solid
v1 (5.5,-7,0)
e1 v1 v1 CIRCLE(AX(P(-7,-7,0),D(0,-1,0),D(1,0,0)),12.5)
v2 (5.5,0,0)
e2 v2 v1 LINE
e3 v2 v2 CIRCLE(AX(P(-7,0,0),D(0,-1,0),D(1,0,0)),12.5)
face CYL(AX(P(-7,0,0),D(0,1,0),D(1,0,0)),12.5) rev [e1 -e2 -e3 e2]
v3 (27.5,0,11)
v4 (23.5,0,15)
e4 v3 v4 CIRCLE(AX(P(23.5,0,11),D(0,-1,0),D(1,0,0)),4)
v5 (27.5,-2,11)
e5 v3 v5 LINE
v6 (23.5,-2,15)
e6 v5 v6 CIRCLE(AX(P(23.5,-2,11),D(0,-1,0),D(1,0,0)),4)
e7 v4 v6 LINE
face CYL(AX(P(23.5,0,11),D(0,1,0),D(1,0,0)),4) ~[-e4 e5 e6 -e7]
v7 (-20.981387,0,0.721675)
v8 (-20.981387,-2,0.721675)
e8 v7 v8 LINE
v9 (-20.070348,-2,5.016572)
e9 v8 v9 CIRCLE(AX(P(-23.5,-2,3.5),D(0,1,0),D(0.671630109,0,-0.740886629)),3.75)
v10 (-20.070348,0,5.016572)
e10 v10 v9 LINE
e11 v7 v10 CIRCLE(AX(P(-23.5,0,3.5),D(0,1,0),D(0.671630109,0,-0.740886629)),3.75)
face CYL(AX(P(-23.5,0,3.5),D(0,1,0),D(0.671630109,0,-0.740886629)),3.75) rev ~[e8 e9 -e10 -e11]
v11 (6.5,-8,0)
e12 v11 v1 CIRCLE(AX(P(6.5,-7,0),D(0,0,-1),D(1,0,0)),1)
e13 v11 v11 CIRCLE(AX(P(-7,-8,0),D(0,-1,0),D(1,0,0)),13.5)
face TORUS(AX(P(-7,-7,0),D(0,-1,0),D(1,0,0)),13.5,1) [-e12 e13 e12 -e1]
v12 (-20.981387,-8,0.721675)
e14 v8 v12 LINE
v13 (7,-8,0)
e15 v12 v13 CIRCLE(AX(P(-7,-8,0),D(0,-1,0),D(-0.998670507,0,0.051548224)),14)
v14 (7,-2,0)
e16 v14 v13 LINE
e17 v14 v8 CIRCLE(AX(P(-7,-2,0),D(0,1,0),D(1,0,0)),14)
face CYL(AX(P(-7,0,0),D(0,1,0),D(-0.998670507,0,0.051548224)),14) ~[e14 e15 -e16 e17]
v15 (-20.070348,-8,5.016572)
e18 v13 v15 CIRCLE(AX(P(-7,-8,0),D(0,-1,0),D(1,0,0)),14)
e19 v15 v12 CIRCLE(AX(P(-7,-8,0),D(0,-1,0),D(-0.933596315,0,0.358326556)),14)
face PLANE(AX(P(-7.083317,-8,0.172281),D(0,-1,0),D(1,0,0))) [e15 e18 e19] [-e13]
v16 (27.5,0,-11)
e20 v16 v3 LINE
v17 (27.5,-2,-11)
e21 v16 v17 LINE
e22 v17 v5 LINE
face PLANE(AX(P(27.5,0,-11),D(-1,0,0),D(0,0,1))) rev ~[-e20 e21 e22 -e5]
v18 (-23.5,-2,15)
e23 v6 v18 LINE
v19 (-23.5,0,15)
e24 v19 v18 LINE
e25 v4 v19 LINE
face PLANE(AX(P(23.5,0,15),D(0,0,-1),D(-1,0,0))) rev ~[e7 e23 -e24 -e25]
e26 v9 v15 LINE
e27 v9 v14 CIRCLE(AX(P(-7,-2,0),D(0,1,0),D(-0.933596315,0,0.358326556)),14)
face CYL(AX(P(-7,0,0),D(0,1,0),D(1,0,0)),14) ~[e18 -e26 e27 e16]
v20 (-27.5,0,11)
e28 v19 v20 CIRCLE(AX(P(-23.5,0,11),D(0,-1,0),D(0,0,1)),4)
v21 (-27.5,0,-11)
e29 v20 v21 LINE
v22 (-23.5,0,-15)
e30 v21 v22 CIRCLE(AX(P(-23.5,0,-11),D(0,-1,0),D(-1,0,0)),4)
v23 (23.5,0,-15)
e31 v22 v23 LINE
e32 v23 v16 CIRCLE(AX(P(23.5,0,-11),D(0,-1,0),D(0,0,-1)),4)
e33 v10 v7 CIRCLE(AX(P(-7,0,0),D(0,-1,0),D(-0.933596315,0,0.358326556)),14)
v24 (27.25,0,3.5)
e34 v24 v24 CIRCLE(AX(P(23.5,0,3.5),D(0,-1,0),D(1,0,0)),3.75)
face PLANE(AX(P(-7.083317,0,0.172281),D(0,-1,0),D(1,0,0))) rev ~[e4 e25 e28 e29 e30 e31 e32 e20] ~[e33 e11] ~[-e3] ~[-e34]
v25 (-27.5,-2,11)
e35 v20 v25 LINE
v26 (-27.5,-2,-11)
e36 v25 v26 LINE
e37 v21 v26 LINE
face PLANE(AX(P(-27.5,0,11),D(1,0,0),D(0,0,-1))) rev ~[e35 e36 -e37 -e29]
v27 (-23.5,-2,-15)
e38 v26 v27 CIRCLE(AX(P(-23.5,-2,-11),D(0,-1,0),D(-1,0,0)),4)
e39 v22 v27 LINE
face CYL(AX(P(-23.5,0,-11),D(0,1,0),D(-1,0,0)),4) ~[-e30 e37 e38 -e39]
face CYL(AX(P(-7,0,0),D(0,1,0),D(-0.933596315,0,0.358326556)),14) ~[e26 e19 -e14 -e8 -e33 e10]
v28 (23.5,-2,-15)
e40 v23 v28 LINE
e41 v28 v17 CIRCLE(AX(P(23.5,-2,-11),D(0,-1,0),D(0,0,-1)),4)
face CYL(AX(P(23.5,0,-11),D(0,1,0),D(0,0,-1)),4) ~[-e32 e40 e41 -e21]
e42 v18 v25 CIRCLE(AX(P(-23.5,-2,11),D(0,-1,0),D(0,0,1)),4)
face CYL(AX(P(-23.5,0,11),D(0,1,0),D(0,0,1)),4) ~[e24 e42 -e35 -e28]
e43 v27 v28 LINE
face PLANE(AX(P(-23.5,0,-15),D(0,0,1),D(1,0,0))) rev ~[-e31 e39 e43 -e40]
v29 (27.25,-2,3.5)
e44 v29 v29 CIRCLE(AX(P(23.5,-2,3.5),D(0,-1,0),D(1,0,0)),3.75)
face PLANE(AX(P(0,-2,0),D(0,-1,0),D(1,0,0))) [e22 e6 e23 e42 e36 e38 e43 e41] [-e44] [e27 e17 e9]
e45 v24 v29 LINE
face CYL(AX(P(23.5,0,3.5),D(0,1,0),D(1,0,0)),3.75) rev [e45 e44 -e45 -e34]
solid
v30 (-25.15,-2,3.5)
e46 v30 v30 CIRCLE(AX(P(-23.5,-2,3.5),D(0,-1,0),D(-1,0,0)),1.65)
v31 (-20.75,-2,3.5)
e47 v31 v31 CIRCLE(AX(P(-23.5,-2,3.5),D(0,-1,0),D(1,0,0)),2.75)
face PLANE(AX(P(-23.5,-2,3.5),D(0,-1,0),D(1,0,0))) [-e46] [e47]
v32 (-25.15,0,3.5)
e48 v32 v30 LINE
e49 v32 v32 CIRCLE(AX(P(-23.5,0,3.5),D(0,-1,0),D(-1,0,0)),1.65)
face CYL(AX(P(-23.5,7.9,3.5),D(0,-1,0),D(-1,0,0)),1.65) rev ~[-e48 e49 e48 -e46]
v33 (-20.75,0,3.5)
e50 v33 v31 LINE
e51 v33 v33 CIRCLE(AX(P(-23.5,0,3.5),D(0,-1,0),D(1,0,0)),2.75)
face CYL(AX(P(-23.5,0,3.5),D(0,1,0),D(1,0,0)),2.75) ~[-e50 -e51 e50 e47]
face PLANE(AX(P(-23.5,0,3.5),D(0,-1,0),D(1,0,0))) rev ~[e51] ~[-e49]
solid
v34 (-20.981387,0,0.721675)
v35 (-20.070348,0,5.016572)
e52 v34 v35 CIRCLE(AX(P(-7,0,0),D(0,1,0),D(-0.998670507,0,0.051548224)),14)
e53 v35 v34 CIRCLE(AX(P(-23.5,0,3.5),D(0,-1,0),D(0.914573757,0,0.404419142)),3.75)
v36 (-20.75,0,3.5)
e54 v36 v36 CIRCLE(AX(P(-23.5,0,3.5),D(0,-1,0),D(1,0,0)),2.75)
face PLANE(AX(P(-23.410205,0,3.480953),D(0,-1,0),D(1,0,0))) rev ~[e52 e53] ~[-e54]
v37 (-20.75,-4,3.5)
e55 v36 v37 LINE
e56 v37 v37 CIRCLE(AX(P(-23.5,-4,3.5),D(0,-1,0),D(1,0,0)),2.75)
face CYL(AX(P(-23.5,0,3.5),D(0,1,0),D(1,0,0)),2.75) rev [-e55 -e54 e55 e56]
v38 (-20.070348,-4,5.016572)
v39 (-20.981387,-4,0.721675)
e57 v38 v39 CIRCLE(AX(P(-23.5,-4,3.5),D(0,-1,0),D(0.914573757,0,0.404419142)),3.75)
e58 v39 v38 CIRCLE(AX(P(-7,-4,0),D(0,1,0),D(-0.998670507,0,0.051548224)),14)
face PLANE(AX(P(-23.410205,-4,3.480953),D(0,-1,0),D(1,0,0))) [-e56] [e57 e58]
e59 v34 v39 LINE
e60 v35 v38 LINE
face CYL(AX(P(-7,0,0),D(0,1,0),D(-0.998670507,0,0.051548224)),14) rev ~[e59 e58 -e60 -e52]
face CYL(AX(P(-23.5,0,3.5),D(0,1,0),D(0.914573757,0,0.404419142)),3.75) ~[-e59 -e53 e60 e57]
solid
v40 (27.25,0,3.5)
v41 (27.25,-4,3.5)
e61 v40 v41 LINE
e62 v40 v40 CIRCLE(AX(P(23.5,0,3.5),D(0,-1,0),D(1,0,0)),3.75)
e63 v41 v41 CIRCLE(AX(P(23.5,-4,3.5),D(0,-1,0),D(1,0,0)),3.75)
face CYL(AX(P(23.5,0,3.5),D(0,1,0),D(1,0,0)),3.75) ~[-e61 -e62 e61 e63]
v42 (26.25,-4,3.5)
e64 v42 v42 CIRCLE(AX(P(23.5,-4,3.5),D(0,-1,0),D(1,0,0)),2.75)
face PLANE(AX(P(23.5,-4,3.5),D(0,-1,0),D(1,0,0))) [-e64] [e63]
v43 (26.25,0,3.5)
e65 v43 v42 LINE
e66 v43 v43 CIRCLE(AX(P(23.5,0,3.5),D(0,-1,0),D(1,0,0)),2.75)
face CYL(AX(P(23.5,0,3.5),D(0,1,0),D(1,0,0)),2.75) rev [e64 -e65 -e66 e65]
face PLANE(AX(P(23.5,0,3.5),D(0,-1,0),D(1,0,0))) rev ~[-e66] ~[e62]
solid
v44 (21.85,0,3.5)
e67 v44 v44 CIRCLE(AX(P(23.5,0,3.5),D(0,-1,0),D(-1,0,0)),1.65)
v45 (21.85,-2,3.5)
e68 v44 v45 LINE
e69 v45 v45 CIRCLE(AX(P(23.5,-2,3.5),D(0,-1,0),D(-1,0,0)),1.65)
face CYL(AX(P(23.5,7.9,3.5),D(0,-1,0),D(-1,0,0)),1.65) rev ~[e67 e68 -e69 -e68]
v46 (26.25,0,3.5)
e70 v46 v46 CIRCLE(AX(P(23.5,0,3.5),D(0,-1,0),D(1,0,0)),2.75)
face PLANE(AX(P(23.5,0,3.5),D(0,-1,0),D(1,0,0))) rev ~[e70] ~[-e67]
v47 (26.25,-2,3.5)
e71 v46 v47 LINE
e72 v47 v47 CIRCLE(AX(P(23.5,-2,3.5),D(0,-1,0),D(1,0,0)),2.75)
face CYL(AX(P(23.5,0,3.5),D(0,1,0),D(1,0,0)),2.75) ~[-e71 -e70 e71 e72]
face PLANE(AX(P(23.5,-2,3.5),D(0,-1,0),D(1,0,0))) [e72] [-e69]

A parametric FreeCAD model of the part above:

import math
import FreeCAD as App
import Part
import Sketcher
from FreeCAD import Vector


def edges_at(feature, points):
    """Names of the edges that pass closest to the given points."""
    edges = feature.Shape.Edges
    near = lambda p: min(range(len(edges)), key=lambda i: edges[i].distToShape(Part.Vertex(*p))[0])
    return sorted({f"Edge{near(p) + 1}" for p in points})

doc = App.newDocument("Part")
body = doc.addObject("PartDesign::Body", "Body")

sketch1 = doc.addObject("Sketcher::SketchObject", "Sketch")
body.addObject(sketch1)
sketch1.AttachmentSupport = (doc.XZ_Plane, [""])
sketch1.MapMode = "FlatFace"
sketch1.addGeometry([
    Part.LineSegment(Vector(-23.5, -15, 0), Vector(23.5, -15, 0)),
    Part.ArcOfCircle(Part.Circle(Vector(23.5, -11, 0), Vector(0, 0, 1), 4), math.radians(-90), math.radians(0)),
    Part.LineSegment(Vector(27.5, -11, 0), Vector(27.5, 11, 0)),
    Part.ArcOfCircle(Part.Circle(Vector(23.5, 11, 0), Vector(0, 0, 1), 4), math.radians(0), math.radians(90)),
    Part.LineSegment(Vector(23.5, 15, 0), Vector(-23.5, 15, 0)),
    Part.ArcOfCircle(Part.Circle(Vector(-23.5, 11, 0), Vector(0, 0, 1), 4), math.radians(90), math.radians(180)),
    Part.LineSegment(Vector(-27.5, 11, 0), Vector(-27.5, -11, 0)),
    Part.ArcOfCircle(Part.Circle(Vector(-23.5, -11, 0), Vector(0, 0, 1), 4), math.radians(180), math.radians(270)),
    Part.ArcOfCircle(Part.Circle(Vector(-23.5, 3.5, 0), Vector(0, 0, 1), 3.8), math.radians(24), math.radians(312)),
    Part.ArcOfCircle(Part.Circle(Vector(-7, 0, 0), Vector(0, 0, 1), 14), math.radians(0), math.radians(159)),
    Part.ArcOfCircle(Part.Circle(Vector(-7, 0, 0), Vector(0, 0, 1), 14), math.radians(177), math.radians(360)),
    Part.Circle(Vector(23.5, 3.5, 0), Vector(0, 0, 1), 3.8),
], False)
sketch1.addConstraint([
    Sketcher.Constraint("Tangent", 0, 2, 1, 1),
    Sketcher.Constraint("Tangent", 1, 2, 2, 1),
    Sketcher.Constraint("Tangent", 2, 2, 3, 1),
    Sketcher.Constraint("Tangent", 3, 2, 4, 1),
    Sketcher.Constraint("Tangent", 4, 2, 5, 1),
    Sketcher.Constraint("Tangent", 5, 2, 6, 1),
    Sketcher.Constraint("Tangent", 6, 2, 7, 1),
    Sketcher.Constraint("Tangent", 7, 2, 0, 1),
    Sketcher.Constraint("Coincident", 8, 1, 9, 2),
    Sketcher.Constraint("Tangent", 9, 1, 10, 2),
    Sketcher.Constraint("Coincident", 10, 1, 8, 2),
    Sketcher.Constraint("Horizontal", 0),
    Sketcher.Constraint("Vertical", 2),
    Sketcher.Constraint("Horizontal", 4),
    Sketcher.Constraint("Vertical", 6),
    Sketcher.Constraint("Equal", 1, 3),
    Sketcher.Constraint("Equal", 3, 5),
    Sketcher.Constraint("Equal", 5, 7),
    Sketcher.Constraint("Equal", 9, 10),
    Sketcher.Constraint("Equal", 8, 11),
    Sketcher.Constraint("Symmetric", 1, 3, 5, 3, -1, 1),
    Sketcher.Constraint("Symmetric", 8, 3, 11, 3, -2),
    Sketcher.Constraint("PointOnObject", 9, 3, -1),
    Sketcher.Constraint("PointOnObject", 9, 1, -1),
    Sketcher.Constraint("Vertical", 7, 3, 8, 3),
    Sketcher.Constraint("Radius", 1, 4.0),
    Sketcher.Constraint("Radius", 9, 14.0),
    Sketcher.Constraint("Diameter", 11, 7.5),
    Sketcher.Constraint("DistanceX", 0, 1, 0, 2, 47.0),
    Sketcher.Constraint("DistanceY", 2, 1, 2, 2, 22.0),
    Sketcher.Constraint("DistanceX", 9, 3, -1, 1, 7.0),
    Sketcher.Constraint("DistanceY", -1, 1, 8, 3, 3.5),
])
pad1 = doc.addObject("PartDesign::Pad", "Pad")
body.addObject(pad1)
pad1.Profile = sketch1
pad1.Length = 2

sketch2 = doc.addObject("Sketcher::SketchObject", "Sketch001")
body.addObject(sketch2)
sketch2.AttachmentSupport = (doc.XZ_Plane, [""])
sketch2.MapMode = "FlatFace"
sketch2.addGeometry([
    Part.ArcOfCircle(Part.Circle(Vector(-7, 0, 0), Vector(0, 0, 1), 14), math.radians(177), math.radians(360)),
    Part.ArcOfCircle(Part.Circle(Vector(-7, 0, 0), Vector(0, 0, 1), 14), math.radians(0), math.radians(159)),
    Part.ArcOfCircle(Part.Circle(Vector(-7, 0, 0), Vector(0, 0, 1), 14), math.radians(159), math.radians(177.05)),
    Part.Circle(Vector(-7, 0, 0), Vector(0, 0, 1), 12.5),
], False)
sketch2.addConstraint([
    Sketcher.Constraint("Tangent", 0, 2, 1, 1),
    Sketcher.Constraint("Tangent", 1, 2, 2, 1),
    Sketcher.Constraint("Tangent", 2, 2, 0, 1),
    Sketcher.Constraint("Coincident", 3, 3, 0, 3),
    Sketcher.Constraint("PointOnObject", 0, 3, -1),
    Sketcher.Constraint("PointOnObject", 0, 2, -1),
    Sketcher.Constraint("Diameter", 3, 25.0),
    Sketcher.Constraint("Radius", 0, 14.0),
    Sketcher.Constraint("DistanceX", 0, 3, -1, 1, 7.0),
    Sketcher.Constraint("DistanceX", 1, 2, -1, 1, 20.070348),
    Sketcher.Constraint("DistanceX", 2, 2, 1, 2, 0.911039),
])
pad2 = doc.addObject("PartDesign::Pad", "Pad001")
body.addObject(pad2)
pad2.Profile = sketch2
pad2.Length = 8
doc.recompute()

fillet = doc.addObject("PartDesign::Fillet", "Fillet")
body.addObject(fillet)
fillet.Base = (pad2, edges_at(pad2, [(-19.5, -8, 0)]))
fillet.Radius = 1
body2 = doc.addObject("PartDesign::Body", "Body001")

sketch3 = doc.addObject("Sketcher::SketchObject", "Sketch002")
body2.addObject(sketch3)
sketch3.AttachmentSupport = (doc.getObject("XZ_Plane001"), [""])
sketch3.MapMode = "FlatFace"
sketch3.addGeometry(Part.Circle(Vector(-23.5, 3.5, 0), Vector(0, 0, 1), 2.8), False)
sketch3.addConstraint([
    Sketcher.Constraint("Diameter", 0, 5.5),
    Sketcher.Constraint("DistanceX", 0, 3, -1, 1, 23.5),
    Sketcher.Constraint("DistanceY", -1, 1, 0, 3, 3.5),
])
pad3 = doc.addObject("PartDesign::Pad", "Pad002")
body2.addObject(pad3)
pad3.Profile = sketch3
pad3.Length = 2

sketch4 = doc.addObject("Sketcher::SketchObject", "Sketch003")
body2.addObject(sketch4)
sketch4.AttachmentSupport = (doc.getObject("XZ_Plane001"), [""])
sketch4.MapMode = "FlatFace"
sketch4.addGeometry([
    Part.Circle(Vector(-23.5, 3.5, 0), Vector(0, 0, 1), 1.6),
    Part.Circle(Vector(23.5, 3.5, 0), Vector(0, 0, 1), 1.6),
], False)
sketch4.addConstraint([
    Sketcher.Constraint("Equal", 0, 1),
    Sketcher.Constraint("Symmetric", 0, 3, 1, 3, -2),
    Sketcher.Constraint("Diameter", 0, 3.3),
    Sketcher.Constraint("DistanceX", 0, 3, 1, 3, 47.0),
    Sketcher.Constraint("DistanceY", -1, 1, 0, 3, 3.5),
])
doc.recompute()
hole = doc.addObject("PartDesign::Hole", "Hole")
body2.addObject(hole)
hole.Profile = sketch4
hole.ThreadType = "None"
hole.Diameter = 3.3
hole.DepthType = "Dimension"
hole.Depth = 7.9
hole.DrillPoint = "Angled"
hole.DrillPointAngle = 118
hole.Reversed = True
body3 = doc.addObject("PartDesign::Body", "Body002")

sketch5 = doc.addObject("Sketcher::SketchObject", "Sketch004")
body3.addObject(sketch5)
sketch5.AttachmentSupport = (doc.getObject("XZ_Plane002"), [""])
sketch5.MapMode = "FlatFace"
sketch5.addGeometry(Part.Circle(Vector(23.5, 3.5, 0), Vector(0, 0, 1), 2.8), False)
sketch5.addConstraint([
    Sketcher.Constraint("Diameter", 0, 5.5),
    Sketcher.Constraint("DistanceX", -1, 1, 0, 3, 23.5),
    Sketcher.Constraint("DistanceY", -1, 1, 0, 3, 3.5),
])
pad4 = doc.addObject("PartDesign::Pad", "Pad003")
body3.addObject(pad4)
pad4.Profile = sketch5
pad4.Length = 2

sketch6 = doc.addObject("Sketcher::SketchObject", "Sketch005")
body3.addObject(sketch6)
sketch6.AttachmentSupport = (doc.getObject("XZ_Plane002"), [""])
sketch6.MapMode = "FlatFace"
sketch6.addGeometry([
    Part.Circle(Vector(-23.5, 3.5, 0), Vector(0, 0, 1), 1.6),
    Part.Circle(Vector(23.5, 3.5, 0), Vector(0, 0, 1), 1.6),
], False)
sketch6.addConstraint([
    Sketcher.Constraint("Equal", 0, 1),
    Sketcher.Constraint("Symmetric", 0, 3, 1, 3, -2),
    Sketcher.Constraint("Diameter", 0, 3.3),
    Sketcher.Constraint("DistanceX", 0, 3, 1, 3, 47.0),
    Sketcher.Constraint("DistanceY", -1, 1, 0, 3, 3.5),
])
doc.recompute()
hole2 = doc.addObject("PartDesign::Hole", "Hole001")
body3.addObject(hole2)
hole2.Profile = sketch6
hole2.ThreadType = "None"
hole2.Diameter = 3.3
hole2.DepthType = "Dimension"
hole2.Depth = 7.9
hole2.DrillPoint = "Angled"
hole2.DrillPointAngle = 118
hole2.Reversed = True
body4 = doc.addObject("PartDesign::Body", "Body003")

sketch7 = doc.addObject("Sketcher::SketchObject", "Sketch006")
body4.addObject(sketch7)
sketch7.AttachmentSupport = (doc.getObject("XZ_Plane003"), [""])
sketch7.MapMode = "FlatFace"
sketch7.addGeometry([
    Part.ArcOfCircle(Part.Circle(Vector(-7, 0, 0), Vector(0, 0, 1), 14), math.radians(159), math.radians(177.05)),
    Part.ArcOfCircle(Part.Circle(Vector(-23.5, 3.5, 0), Vector(0, 0, 1), 3.8), math.radians(24), math.radians(312)),
    Part.Circle(Vector(-23.5, 3.5, 0), Vector(0, 0, 1), 2.8),
], False)
sketch7.addConstraint([
    Sketcher.Constraint("Coincident", 0, 1, 1, 1),
    Sketcher.Constraint("Coincident", 1, 2, 0, 2),
    Sketcher.Constraint("Coincident", 2, 3, 1, 3),
    Sketcher.Constraint("PointOnObject", 0, 3, -1),
    Sketcher.Constraint("Radius", 0, 14.0),
    Sketcher.Constraint("Diameter", 2, 5.5),
    Sketcher.Constraint("Radius", 1, 3.75),
    Sketcher.Constraint("DistanceX", 0, 3, -1, 1, 7.0),
    Sketcher.Constraint("DistanceX", 1, 3, -1, 1, 23.5),
    Sketcher.Constraint("DistanceY", -1, 1, 1, 3, 3.5),
])
pad5 = doc.addObject("PartDesign::Pad", "Pad004")
body4.addObject(pad5)
pad5.Profile = sketch7
pad5.Length = 4
body5 = doc.addObject("PartDesign::Body", "Body004")

sketch8 = doc.addObject("Sketcher::SketchObject", "Sketch007")
body5.addObject(sketch8)
sketch8.AttachmentSupport = (doc.getObject("XZ_Plane004"), [""])
sketch8.MapMode = "FlatFace"
sketch8.addGeometry([
    Part.Circle(Vector(23.5, 3.5, 0), Vector(0, 0, 1), 3.8),
    Part.Circle(Vector(23.5, 3.5, 0), Vector(0, 0, 1), 2.8),
], False)
sketch8.addConstraint([
    Sketcher.Constraint("Coincident", 1, 3, 0, 3),
    Sketcher.Constraint("Diameter", 0, 7.5),
    Sketcher.Constraint("Diameter", 1, 5.5),
    Sketcher.Constraint("DistanceX", -1, 1, 0, 3, 23.5),
    Sketcher.Constraint("DistanceY", -1, 1, 0, 3, 3.5),
])
pad6 = doc.addObject("PartDesign::Pad", "Pad005")
body5.addObject(pad6)
pad6.Profile = sketch8
pad6.Length = 4

doc.recompute()
